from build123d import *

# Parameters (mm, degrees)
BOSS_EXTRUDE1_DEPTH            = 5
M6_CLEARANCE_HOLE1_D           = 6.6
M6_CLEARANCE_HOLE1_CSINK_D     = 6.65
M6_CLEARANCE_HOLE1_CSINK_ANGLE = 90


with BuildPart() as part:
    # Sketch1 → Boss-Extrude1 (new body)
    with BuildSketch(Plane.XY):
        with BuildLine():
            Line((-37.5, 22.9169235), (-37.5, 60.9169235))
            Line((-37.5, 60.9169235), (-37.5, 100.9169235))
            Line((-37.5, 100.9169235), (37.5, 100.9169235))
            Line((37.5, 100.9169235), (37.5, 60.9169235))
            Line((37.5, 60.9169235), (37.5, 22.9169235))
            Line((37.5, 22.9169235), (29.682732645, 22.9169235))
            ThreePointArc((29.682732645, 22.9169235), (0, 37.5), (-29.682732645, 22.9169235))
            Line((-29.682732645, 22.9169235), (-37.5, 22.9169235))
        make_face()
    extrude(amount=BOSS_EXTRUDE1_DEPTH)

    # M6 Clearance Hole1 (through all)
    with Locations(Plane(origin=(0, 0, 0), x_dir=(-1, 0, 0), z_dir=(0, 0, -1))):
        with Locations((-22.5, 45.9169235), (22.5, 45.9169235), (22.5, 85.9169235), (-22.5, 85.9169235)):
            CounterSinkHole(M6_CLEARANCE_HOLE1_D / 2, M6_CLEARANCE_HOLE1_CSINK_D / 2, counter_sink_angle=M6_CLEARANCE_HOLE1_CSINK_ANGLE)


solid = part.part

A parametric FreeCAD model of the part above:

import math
import FreeCAD as App
import Part
import Sketcher
Q = App.Units.Quantity

doc = App.newDocument("Part")
body = doc.addObject("PartDesign::Body", "Body")

# Sketch on XY plane
sketch1 = body.newObject("Sketcher::SketchObject", "Sketch")
sketch1.AttachmentSupport = (doc.getObject("XY_Plane"), [""])
sketch1.MapMode = "FlatFace"
sketch1.addGeometry([
    Part.LineSegment(App.Vector(-38, 101, 0), App.Vector(-38, 23, 0)),  # 0
    Part.LineSegment(App.Vector(-38, 23, 0), App.Vector(-30, 23, 0)),  # 1
    Part.ArcOfCircle(Part.Circle(App.Vector(0, 0, 0), App.Vector(0, 0, 1), 37), math.radians(38), math.radians(142)),  # 2
    Part.LineSegment(App.Vector(30, 23, 0), App.Vector(38, 23, 0)),  # 3
    Part.LineSegment(App.Vector(38, 23, 0), App.Vector(38, 101, 0)),  # 4
    Part.LineSegment(App.Vector(38, 101, 0), App.Vector(-38, 101, 0)),  # 5
], False)
sketch1.addConstraint([
    Sketcher.Constraint("Coincident", 0, 2, 1, 1),
    Sketcher.Constraint("Coincident", 1, 2, 2, 2),
    Sketcher.Constraint("Coincident", 2, 1, 3, 1),
    Sketcher.Constraint("Coincident", 3, 2, 4, 1),
    Sketcher.Constraint("Coincident", 4, 2, 5, 1),
    Sketcher.Constraint("Coincident", 5, 2, 0, 1),
    Sketcher.Constraint("Vertical", 0),
    Sketcher.Constraint("Horizontal", 1),
    Sketcher.Constraint("Horizontal", 3),
    Sketcher.Constraint("Vertical", 4),
    Sketcher.Constraint("Horizontal", 5),
    Sketcher.Constraint("Coincident", 2, 3, -1, 1),
    Sketcher.Constraint("Symmetric", 0, 2, 3, 2, -2),
    Sketcher.Constraint("Radius", 2, Q("37.5 mm")),
    Sketcher.Constraint("DistanceX", 5, 2, 5, 1, Q("75 mm")),
    Sketcher.Constraint("DistanceY", 0, 2, 0, 1, Q("78 mm")),
    Sketcher.Constraint("DistanceX", 1, 1, 1, 2, Q("7.817267 mm")),
])
pad1 = body.newObject("PartDesign::Pad", "Pad")
pad1.Profile = sketch1
pad1.Length = 5

# Sketch on XY plane
sketch2 = body.newObject("Sketcher::SketchObject", "Sketch001")
sketch2.AttachmentSupport = (doc.getObject("XY_Plane"), [""])
sketch2.MapMode = "FlatFace"
sketch2.addGeometry([
    Part.Circle(App.Vector(22.5, 45.9, 0), App.Vector(0, 0, 1), 3.3),
    Part.Circle(App.Vector(-22.5, 45.9, 0), App.Vector(0, 0, 1), 3.3),
    Part.Circle(App.Vector(-22.5, 85.9, 0), App.Vector(0, 0, 1), 3.3),
    Part.Circle(App.Vector(22.5, 85.9, 0), App.Vector(0, 0, 1), 3.3),
], False)
sketch2.addConstraint([
    Sketcher.Constraint("Equal", 0, 1),
    Sketcher.Constraint("Equal", 1, 2),
    Sketcher.Constraint("Equal", 2, 3),
    Sketcher.Constraint("Symmetric", 0, 3, 1, 3, -2),
    Sketcher.Constraint("Symmetric", 2, 3, 3, 3, -2),
    Sketcher.Constraint("Vertical", 1, 3, 2, 3),
    Sketcher.Constraint("Diameter", 0, Q("6.6 mm")),
    Sketcher.Constraint("DistanceX", 1, 3, 0, 3, Q("45 mm")),
    Sketcher.Constraint("DistanceY", 1, 3, 2, 3, Q("40 mm")),
    Sketcher.Constraint("DistanceY", -1, 1, 0, 3, Q("45.916924 mm")),
])
doc.recompute()
hole = body.newObject("PartDesign::Hole", "Hole")
hole.Profile = sketch2
hole.ThreadType = "None"
hole.Diameter = 6.6
hole.DepthType = "ThroughAll"
hole.HoleCutType = "Countersink"
hole.HoleCutDiameter = 6.65
hole.HoleCutCountersinkAngle = 90
hole.Reversed = True

doc.recompute()
